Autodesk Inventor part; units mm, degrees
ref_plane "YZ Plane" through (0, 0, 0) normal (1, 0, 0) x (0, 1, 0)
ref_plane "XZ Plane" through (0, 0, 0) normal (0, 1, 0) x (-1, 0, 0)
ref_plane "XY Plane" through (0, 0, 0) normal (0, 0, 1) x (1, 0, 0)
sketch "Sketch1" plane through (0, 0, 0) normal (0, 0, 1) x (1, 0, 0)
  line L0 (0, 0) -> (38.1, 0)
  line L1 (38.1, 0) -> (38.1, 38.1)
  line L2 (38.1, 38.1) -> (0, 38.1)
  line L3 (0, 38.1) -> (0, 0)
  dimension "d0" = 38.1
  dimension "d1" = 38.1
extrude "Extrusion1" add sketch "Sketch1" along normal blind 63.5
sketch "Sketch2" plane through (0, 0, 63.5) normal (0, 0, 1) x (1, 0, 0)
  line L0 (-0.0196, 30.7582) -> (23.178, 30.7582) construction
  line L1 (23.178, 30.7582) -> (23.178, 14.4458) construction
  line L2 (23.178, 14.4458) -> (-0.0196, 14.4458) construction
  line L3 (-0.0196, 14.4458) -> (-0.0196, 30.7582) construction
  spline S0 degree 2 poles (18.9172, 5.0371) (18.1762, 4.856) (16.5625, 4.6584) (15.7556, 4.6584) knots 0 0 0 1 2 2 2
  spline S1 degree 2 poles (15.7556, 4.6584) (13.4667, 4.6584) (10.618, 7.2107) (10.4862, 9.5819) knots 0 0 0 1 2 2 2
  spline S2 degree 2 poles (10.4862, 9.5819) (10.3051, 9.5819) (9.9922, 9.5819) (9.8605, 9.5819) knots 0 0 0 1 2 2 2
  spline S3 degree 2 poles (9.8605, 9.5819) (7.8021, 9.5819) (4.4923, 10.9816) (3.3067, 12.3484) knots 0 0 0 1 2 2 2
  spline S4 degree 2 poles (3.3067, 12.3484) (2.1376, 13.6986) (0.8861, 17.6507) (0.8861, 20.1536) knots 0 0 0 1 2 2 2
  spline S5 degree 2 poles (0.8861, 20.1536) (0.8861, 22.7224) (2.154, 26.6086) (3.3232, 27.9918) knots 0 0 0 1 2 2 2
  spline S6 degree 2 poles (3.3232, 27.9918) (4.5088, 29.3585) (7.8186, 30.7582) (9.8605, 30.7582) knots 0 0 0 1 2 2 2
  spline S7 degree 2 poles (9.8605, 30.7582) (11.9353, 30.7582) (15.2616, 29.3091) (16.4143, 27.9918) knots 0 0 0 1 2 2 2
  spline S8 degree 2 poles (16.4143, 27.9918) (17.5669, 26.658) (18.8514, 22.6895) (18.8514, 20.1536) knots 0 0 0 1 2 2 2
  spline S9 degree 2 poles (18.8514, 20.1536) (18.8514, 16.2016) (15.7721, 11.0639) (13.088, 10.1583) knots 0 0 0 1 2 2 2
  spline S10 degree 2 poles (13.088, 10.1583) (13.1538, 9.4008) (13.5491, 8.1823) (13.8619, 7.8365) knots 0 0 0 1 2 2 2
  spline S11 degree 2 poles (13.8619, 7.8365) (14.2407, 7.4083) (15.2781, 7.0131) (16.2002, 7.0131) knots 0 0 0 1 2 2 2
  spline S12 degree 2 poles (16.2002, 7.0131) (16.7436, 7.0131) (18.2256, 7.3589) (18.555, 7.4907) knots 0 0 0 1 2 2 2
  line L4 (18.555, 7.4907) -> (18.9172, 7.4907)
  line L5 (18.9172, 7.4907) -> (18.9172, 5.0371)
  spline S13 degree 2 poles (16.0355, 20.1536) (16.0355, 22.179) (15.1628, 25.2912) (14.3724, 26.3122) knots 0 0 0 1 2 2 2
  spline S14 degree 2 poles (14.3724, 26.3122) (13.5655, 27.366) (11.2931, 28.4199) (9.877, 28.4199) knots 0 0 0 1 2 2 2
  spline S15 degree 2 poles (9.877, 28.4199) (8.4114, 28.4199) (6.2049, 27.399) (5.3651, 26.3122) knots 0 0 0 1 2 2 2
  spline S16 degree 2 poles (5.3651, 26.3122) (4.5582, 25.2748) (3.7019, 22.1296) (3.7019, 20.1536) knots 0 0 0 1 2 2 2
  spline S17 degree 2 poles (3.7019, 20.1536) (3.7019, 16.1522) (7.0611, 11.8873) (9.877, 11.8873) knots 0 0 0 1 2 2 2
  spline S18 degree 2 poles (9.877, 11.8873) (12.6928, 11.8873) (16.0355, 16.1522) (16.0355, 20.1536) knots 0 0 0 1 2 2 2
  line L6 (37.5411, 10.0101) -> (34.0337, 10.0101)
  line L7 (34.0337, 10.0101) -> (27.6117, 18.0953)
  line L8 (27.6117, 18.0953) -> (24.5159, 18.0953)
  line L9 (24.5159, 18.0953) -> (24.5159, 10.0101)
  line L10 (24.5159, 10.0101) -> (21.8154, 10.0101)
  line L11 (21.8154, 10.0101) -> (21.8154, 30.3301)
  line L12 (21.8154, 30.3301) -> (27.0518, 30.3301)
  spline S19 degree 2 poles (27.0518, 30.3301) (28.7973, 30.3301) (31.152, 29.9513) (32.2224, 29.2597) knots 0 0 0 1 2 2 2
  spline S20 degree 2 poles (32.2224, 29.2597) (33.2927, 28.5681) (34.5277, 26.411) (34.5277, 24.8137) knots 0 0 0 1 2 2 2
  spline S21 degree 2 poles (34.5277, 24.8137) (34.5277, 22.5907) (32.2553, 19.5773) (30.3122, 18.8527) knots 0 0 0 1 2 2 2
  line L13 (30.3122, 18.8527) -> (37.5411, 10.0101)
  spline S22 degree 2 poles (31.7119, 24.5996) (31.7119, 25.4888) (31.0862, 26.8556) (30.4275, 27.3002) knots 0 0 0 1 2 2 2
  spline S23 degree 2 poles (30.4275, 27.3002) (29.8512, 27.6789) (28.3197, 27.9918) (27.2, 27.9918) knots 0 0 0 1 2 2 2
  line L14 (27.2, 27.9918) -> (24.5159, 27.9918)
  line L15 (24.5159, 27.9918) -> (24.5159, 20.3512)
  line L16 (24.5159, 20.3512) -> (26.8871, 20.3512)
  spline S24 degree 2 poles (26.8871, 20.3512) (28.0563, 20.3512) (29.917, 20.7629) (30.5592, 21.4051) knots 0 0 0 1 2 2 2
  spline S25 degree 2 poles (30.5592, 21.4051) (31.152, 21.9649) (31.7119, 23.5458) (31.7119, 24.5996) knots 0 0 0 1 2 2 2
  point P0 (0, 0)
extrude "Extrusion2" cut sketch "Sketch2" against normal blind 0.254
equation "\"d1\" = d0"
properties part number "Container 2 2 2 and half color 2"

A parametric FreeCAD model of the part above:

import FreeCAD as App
import Part
import Sketcher

V = App.Vector
Q = App.Units.Quantity

doc = App.newDocument("Part")
params = doc.addObject("Spreadsheet::Sheet", "Params")
for row, (alias, value) in enumerate([
    ("sketch1_width", "1.5 in"),
    ("pad1_length", "2.5 in"),
    ("sketch2_height", "0.8 in"),
    ("pocket1_length", "0.01 in"),
], start=1):
    params.set(f"A{row}", alias)
    params.set(f"B{row}", "=" + value)
    params.setAlias(f"B{row}", alias)

body = doc.addObject("PartDesign::Body", "Body")

# Sketch on XY plane
sketch1 = body.newObject("Sketcher::SketchObject", "Sketch")
sketch1.AttachmentSupport = (doc.getObject("XY_Plane"), [""])
sketch1.MapMode = "FlatFace"
sketch1.addGeometry(Part.LineSegment(V(0, 38, 0), V(0, 0, 0)), False)
sketch1.addGeometry(Part.LineSegment(V(0, 0, 0), V(38, 0, 0)), False)
sketch1.addGeometry(Part.LineSegment(V(38, 0, 0), V(38, 38, 0)), False)
sketch1.addGeometry(Part.LineSegment(V(38, 38, 0), V(0, 38, 0)), False)
sketch1.addConstraint(Sketcher.Constraint("Coincident", 0, 2, 1, 1))
sketch1.addConstraint(Sketcher.Constraint("Coincident", 1, 2, 2, 1))
sketch1.addConstraint(Sketcher.Constraint("Coincident", 2, 2, 3, 1))
sketch1.addConstraint(Sketcher.Constraint("Coincident", 3, 2, 0, 1))
sketch1.addConstraint(Sketcher.Constraint("Vertical", 0))
sketch1.addConstraint(Sketcher.Constraint("Horizontal", 1))
sketch1.addConstraint(Sketcher.Constraint("Vertical", 2))
sketch1.addConstraint(Sketcher.Constraint("Horizontal", 3))
sketch1.addConstraint(Sketcher.Constraint("Coincident", 0, 2, -1, 1))
sketch1.addConstraint(Sketcher.Constraint("Equal", 3, 0))
sketch1.addConstraint(Sketcher.Constraint("DistanceX", 1, 1, 1, 2, Q("1.5 in")))
sketch1.setExpression("Constraints[10]", "Params.sketch1_width")
pad1 = body.newObject("PartDesign::Pad", "Pad")
pad1.Profile = sketch1
pad1.setExpression("Length", "Params.pad1_length")

# Sketch on XY plane
sketch2 = body.newObject("Sketcher::SketchObject", "Sketch001")
sketch2.AttachmentSupport = (doc.getObject("XY_Plane"), [""])
sketch2.MapMode = "FlatFace"
sketch2.AttachmentOffset = App.Placement(V(0, 0, 2.5 * 25.4), App.Rotation())
sketch2.addGeometry(Part.BSplineCurve([V(18.9172, 5.0371, 0), V(18.1762, 4.856, 0), V(16.5625, 4.6584, 0), V(15.7556, 4.6584, 0)], [3, 1, 3], [0, 1, 2], False, 2, [1, 1, 1, 1], False), False)
sketch2.addGeometry(Part.LineSegment(V(18.9172, 5.0371, 0), V(18.9172, 7.4907, 0)), False)
sketch2.addGeometry(Part.LineSegment(V(18.9172, 7.4907, 0), V(18.555, 7.4907, 0)), False)
sketch2.addGeometry(Part.BSplineCurve([V(16.2002, 7.0131, 0), V(16.7436, 7.0131, 0), V(18.2256, 7.3589, 0), V(18.555, 7.4907, 0)], [3, 1, 3], [0, 1, 2], False, 2, [1, 1, 1, 1], False), False)
sketch2.addGeometry(Part.BSplineCurve([V(13.8619, 7.8365, 0), V(14.2407, 7.4083, 0), V(15.2781, 7.0131, 0), V(16.2002, 7.0131, 0)], [3, 1, 3], [0, 1, 2], False, 2, [1, 1, 1, 1], False), False)
sketch2.addGeometry(Part.BSplineCurve([V(13.088, 10.1583, 0), V(13.1538, 9.4008, 0), V(13.5491, 8.1823, 0), V(13.8619, 7.8365, 0)], [3, 1, 3], [0, 1, 2], False, 2, [1, 1, 1, 1], False), False)
sketch2.addGeometry(Part.BSplineCurve([V(18.8514, 20.1536, 0), V(18.8514, 16.2016, 0), V(15.7721, 11.0639, 0), V(13.088, 10.1583, 0)], [3, 1, 3], [0, 1, 2], False, 2, [1, 1, 1, 1], False), False)
sketch2.addGeometry(Part.BSplineCurve([V(16.4143, 27.9918, 0), V(17.5669, 26.658, 0), V(18.8514, 22.6895, 0), V(18.8514, 20.1536, 0)], [3, 1, 3], [0, 1, 2], False, 2, [1, 1, 1, 1], False), False)
sketch2.addGeometry(Part.BSplineCurve([V(9.8605, 30.7582, 0), V(11.9353, 30.7582, 0), V(15.2616, 29.3091, 0), V(16.4143, 27.9918, 0)], [3, 1, 3], [0, 1, 2], False, 2, [1, 1, 1, 1], False), False)
sketch2.addGeometry(Part.BSplineCurve([V(3.3232, 27.9918, 0), V(4.5088, 29.3585, 0), V(7.8186, 30.7582, 0), V(9.8605, 30.7582, 0)], [3, 1, 3], [0, 1, 2], False, 2, [1, 1, 1, 1], False), False)
sketch2.addGeometry(Part.BSplineCurve([V(0.8861, 20.1536, 0), V(0.8861, 22.7224, 0), V(2.154, 26.6086, 0), V(3.3232, 27.9918, 0)], [3, 1, 3], [0, 1, 2], False, 2, [1, 1, 1, 1], False), False)
sketch2.addGeometry(Part.BSplineCurve([V(3.3067, 12.3484, 0), V(2.1376, 13.6986, 0), V(0.8861, 17.6507, 0), V(0.8861, 20.1536, 0)], [3, 1, 3], [0, 1, 2], False, 2, [1, 1, 1, 1], False), False)
sketch2.addGeometry(Part.BSplineCurve([V(9.8605, 9.5819, 0), V(7.8021, 9.5819, 0), V(4.4923, 10.9816, 0), V(3.3067, 12.3484, 0)], [3, 1, 3], [0, 1, 2], False, 2, [1, 1, 1, 1], False), False)
sketch2.addGeometry(Part.BSplineCurve([V(10.4862, 9.5819, 0), V(10.3051, 9.5819, 0), V(9.9922, 9.5819, 0), V(9.8605, 9.5819, 0)], [3, 1, 3], [0, 1, 2], False, 2, [1, 1, 1, 1], False), False)
sketch2.addGeometry(Part.BSplineCurve([V(15.7556, 4.6584, 0), V(13.4667, 4.6584, 0), V(10.618, 7.2107, 0), V(10.4862, 9.5819, 0)], [3, 1, 3], [0, 1, 2], False, 2, [1, 1, 1, 1], False), False)
sketch2.addGeometry(Part.BSplineCurve([V(16.0355, 20.1536, 0), V(16.0355, 22.179, 0), V(15.1628, 25.2912, 0), V(14.3724, 26.3122, 0)], [3, 1, 3], [0, 1, 2], False, 2, [1, 1, 1, 1], False), False)
sketch2.addGeometry(Part.BSplineCurve([V(9.877, 11.8873, 0), V(12.6928, 11.8873, 0), V(16.0355, 16.1522, 0), V(16.0355, 20.1536, 0)], [3, 1, 3], [0, 1, 2], False, 2, [1, 1, 1, 1], False), False)
sketch2.addGeometry(Part.BSplineCurve([V(3.7019, 20.1536, 0), V(3.7019, 16.1522, 0), V(7.0611, 11.8873, 0), V(9.877, 11.8873, 0)], [3, 1, 3], [0, 1, 2], False, 2, [1, 1, 1, 1], False), False)
sketch2.addGeometry(Part.BSplineCurve([V(5.3651, 26.3122, 0), V(4.5582, 25.2748, 0), V(3.7019, 22.1296, 0), V(3.7019, 20.1536, 0)], [3, 1, 3], [0, 1, 2], False, 2, [1, 1, 1, 1], False), False)
sketch2.addGeometry(Part.BSplineCurve([V(9.877, 28.4199, 0), V(8.4114, 28.4199, 0), V(6.2049, 27.399, 0), V(5.3651, 26.3122, 0)], [3, 1, 3], [0, 1, 2], False, 2, [1, 1, 1, 1], False), False)
sketch2.addGeometry(Part.BSplineCurve([V(14.3724, 26.3122, 0), V(13.5655, 27.366, 0), V(11.2931, 28.4199, 0), V(9.877, 28.4199, 0)], [3, 1, 3], [0, 1, 2], False, 2, [1, 1, 1, 1], False), False)
sketch2.addGeometry(Part.LineSegment(V(34.0337, 10.0101, 0), V(37.5411, 10.0101, 0)), False)
sketch2.addGeometry(Part.LineSegment(V(37.5411, 10.0101, 0), V(30.3122, 18.8527, 0)), False)
sketch2.addGeometry(Part.BSplineCurve([V(34.5277, 24.8137, 0), V(34.5277, 22.5907, 0), V(32.2553, 19.5773, 0), V(30.3122, 18.8527, 0)], [3, 1, 3], [0, 1, 2], False, 2, [1, 1, 1, 1], False), False)
sketch2.addGeometry(Part.BSplineCurve([V(32.2224, 29.2597, 0), V(33.2927, 28.5681, 0), V(34.5277, 26.411, 0), V(34.5277, 24.8137, 0)], [3, 1, 3], [0, 1, 2], False, 2, [1, 1, 1, 1], False), False)
sketch2.addGeometry(Part.BSplineCurve([V(27.0518, 30.3301, 0), V(28.7973, 30.3301, 0), V(31.152, 29.9513, 0), V(32.2224, 29.2597, 0)], [3, 1, 3], [0, 1, 2], False, 2, [1, 1, 1, 1], False), False)
sketch2.addGeometry(Part.LineSegment(V(27.0518, 30.3301, 0), V(21.8154, 30.3301, 0)), False)
sketch2.addGeometry(Part.LineSegment(V(21.8154, 30.3301, 0), V(21.8154, 10.0101, 0)), False)
sketch2.addGeometry(Part.LineSegment(V(21.8154, 10.0101, 0), V(24.5159, 10.0101, 0)), False)
sketch2.addGeometry(Part.LineSegment(V(24.5159, 10.0101, 0), V(24.5159, 18.0953, 0)), False)
sketch2.addGeometry(Part.LineSegment(V(24.5159, 18.0953, 0), V(27.6117, 18.0953, 0)), False)
sketch2.addGeometry(Part.LineSegment(V(27.6117, 18.0953, 0), V(34.0337, 10.0101, 0)), False)
sketch2.addGeometry(Part.BSplineCurve([V(31.7119, 24.5996, 0), V(31.7119, 25.4888, 0), V(31.0862, 26.8556, 0), V(30.4275, 27.3002, 0)], [3, 1, 3], [0, 1, 2], False, 2, [1, 1, 1, 1], False), False)
sketch2.addGeometry(Part.BSplineCurve([V(30.5592, 21.4051, 0), V(31.152, 21.9649, 0), V(31.7119, 23.5458, 0), V(31.7119, 24.5996, 0)], [3, 1, 3], [0, 1, 2], False, 2, [1, 1, 1, 1], False), False)
sketch2.addGeometry(Part.BSplineCurve([V(26.8871, 20.3512, 0), V(28.0563, 20.3512, 0), V(29.917, 20.7629, 0), V(30.5592, 21.4051, 0)], [3, 1, 3], [0, 1, 2], False, 2, [1, 1, 1, 1], False), False)
sketch2.addGeometry(Part.LineSegment(V(26.8871, 20.3512, 0), V(24.5159, 20.3512, 0)), False)
sketch2.addGeometry(Part.LineSegment(V(24.5159, 20.3512, 0), V(24.5159, 27.9918, 0)), False)
sketch2.addGeometry(Part.LineSegment(V(24.5159, 27.9918, 0), V(27.2, 27.9918, 0)), False)
sketch2.addGeometry(Part.BSplineCurve([V(30.4275, 27.3002, 0), V(29.8512, 27.6789, 0), V(28.3197, 27.9918, 0), V(27.2, 27.9918, 0)], [3, 1, 3], [0, 1, 2], False, 2, [1, 1, 1, 1], False), False)
sketch2.addConstraint(Sketcher.Constraint("Block", 0))
sketch2.addConstraint(Sketcher.Constraint("Block", 3))
sketch2.addConstraint(Sketcher.Constraint("Block", 4))
sketch2.addConstraint(Sketcher.Constraint("Block", 5))
sketch2.addConstraint(Sketcher.Constraint("Block", 6))
sketch2.addConstraint(Sketcher.Constraint("Block", 7))
sketch2.addConstraint(Sketcher.Constraint("Block", 8))
sketch2.addConstraint(Sketcher.Constraint("Block", 9))
sketch2.addConstraint(Sketcher.Constraint("Block", 10))
sketch2.addConstraint(Sketcher.Constraint("Block", 11))
sketch2.addConstraint(Sketcher.Constraint("Block", 12))
sketch2.addConstraint(Sketcher.Constraint("Block", 13))
sketch2.addConstraint(Sketcher.Constraint("Block", 14))
sketch2.addConstraint(Sketcher.Constraint("Block", 15))
sketch2.addConstraint(Sketcher.Constraint("Block", 16))
sketch2.addConstraint(Sketcher.Constraint("Block", 17))
sketch2.addConstraint(Sketcher.Constraint("Block", 18))
sketch2.addConstraint(Sketcher.Constraint("Block", 19))
sketch2.addConstraint(Sketcher.Constraint("Block", 20))
sketch2.addConstraint(Sketcher.Constraint("Block", 23))
sketch2.addConstraint(Sketcher.Constraint("Block", 24))
sketch2.addConstraint(Sketcher.Constraint("Block", 25))
sketch2.addConstraint(Sketcher.Constraint("Block", 32))
sketch2.addConstraint(Sketcher.Constraint("Block", 33))
sketch2.addConstraint(Sketcher.Constraint("Block", 34))
sketch2.addConstraint(Sketcher.Constraint("Block", 38))
sketch2.addConstraint(Sketcher.Constraint("Coincident", 0, 1, 1, 1))
sketch2.addConstraint(Sketcher.Constraint("Coincident", 1, 2, 2, 1))
sketch2.addConstraint(Sketcher.Constraint("Coincident", 2, 2, 3, 2))
sketch2.addConstraint(Sketcher.Constraint("Coincident", 21, 2, 22, 1))
sketch2.addConstraint(Sketcher.Constraint("Coincident", 22, 2, 23, 2))
sketch2.addConstraint(Sketcher.Constraint("Coincident", 25, 1, 26, 1))
sketch2.addConstraint(Sketcher.Constraint("Coincident", 26, 2, 27, 1))
sketch2.addConstraint(Sketcher.Constraint("Coincident", 27, 2, 28, 1))
sketch2.addConstraint(Sketcher.Constraint("Coincident", 28, 2, 29, 1))
sketch2.addConstraint(Sketcher.Constraint("Coincident", 29, 2, 30, 1))
sketch2.addConstraint(Sketcher.Constraint("Coincident", 30, 2, 31, 1))
sketch2.addConstraint(Sketcher.Constraint("Coincident", 31, 2, 21, 1))
sketch2.addConstraint(Sketcher.Constraint("Coincident", 34, 1, 35, 1))
sketch2.addConstraint(Sketcher.Constraint("Coincident", 35, 2, 36, 1))
sketch2.addConstraint(Sketcher.Constraint("Coincident", 36, 2, 37, 1))
sketch2.addConstraint(Sketcher.Constraint("Coincident", 37, 2, 38, 2))
sketch2.addConstraint(Sketcher.Constraint("Vertical", 1))
sketch2.addConstraint(Sketcher.Constraint("Horizontal", 2))
sketch2.addConstraint(Sketcher.Constraint("Horizontal", 21))
sketch2.addConstraint(Sketcher.Constraint("Horizontal", 26))
sketch2.addConstraint(Sketcher.Constraint("Vertical", 27))
sketch2.addConstraint(Sketcher.Constraint("Horizontal", 28))
sketch2.addConstraint(Sketcher.Constraint("Vertical", 29))
sketch2.addConstraint(Sketcher.Constraint("Horizontal", 30))
sketch2.addConstraint(Sketcher.Constraint("Horizontal", 35))
sketch2.addConstraint(Sketcher.Constraint("Vertical", 36))
sketch2.addConstraint(Sketcher.Constraint("Horizontal", 37))
sketch2.addConstraint(Sketcher.Constraint("Horizontal", 21, 2, 27, 2))
sketch2.addConstraint(Sketcher.Constraint("Vertical", 29, 2, 35, 2))
sketch2.addConstraint(Sketcher.Constraint("DistanceY", 27, 2, 27, 1, Q("0.8 in")))
sketch2.addConstraint(Sketcher.Constraint("Angle", 31, Q("-51.5402 deg")))
sketch2.addConstraint(Sketcher.Constraint("DistanceX", -1, 1, 21, 2, Q("1.478 in")))
sketch2.addConstraint(Sketcher.Constraint("DistanceX", 26, 2, 37, 2, Q("0.212 in")))
sketch2.addConstraint(Sketcher.Constraint("Distance", 31, Q("0.4065 in")))
sketch2.addConstraint(Sketcher.Constraint("DistanceX", 21, 1, 21, 2, Q("3.5074 mm")))
sketch2.addConstraint(Sketcher.Constraint("DistanceX", 28, 1, 28, 2, Q("2.7005 mm")))
sketch2.setExpression("Constraints[55]", "Params.sketch2_height")
pocket1 = body.newObject("PartDesign::Pocket", "Pocket")
pocket1.Profile = sketch2
pocket1.setExpression("Length", "Params.pocket1_length")

doc.recompute()
